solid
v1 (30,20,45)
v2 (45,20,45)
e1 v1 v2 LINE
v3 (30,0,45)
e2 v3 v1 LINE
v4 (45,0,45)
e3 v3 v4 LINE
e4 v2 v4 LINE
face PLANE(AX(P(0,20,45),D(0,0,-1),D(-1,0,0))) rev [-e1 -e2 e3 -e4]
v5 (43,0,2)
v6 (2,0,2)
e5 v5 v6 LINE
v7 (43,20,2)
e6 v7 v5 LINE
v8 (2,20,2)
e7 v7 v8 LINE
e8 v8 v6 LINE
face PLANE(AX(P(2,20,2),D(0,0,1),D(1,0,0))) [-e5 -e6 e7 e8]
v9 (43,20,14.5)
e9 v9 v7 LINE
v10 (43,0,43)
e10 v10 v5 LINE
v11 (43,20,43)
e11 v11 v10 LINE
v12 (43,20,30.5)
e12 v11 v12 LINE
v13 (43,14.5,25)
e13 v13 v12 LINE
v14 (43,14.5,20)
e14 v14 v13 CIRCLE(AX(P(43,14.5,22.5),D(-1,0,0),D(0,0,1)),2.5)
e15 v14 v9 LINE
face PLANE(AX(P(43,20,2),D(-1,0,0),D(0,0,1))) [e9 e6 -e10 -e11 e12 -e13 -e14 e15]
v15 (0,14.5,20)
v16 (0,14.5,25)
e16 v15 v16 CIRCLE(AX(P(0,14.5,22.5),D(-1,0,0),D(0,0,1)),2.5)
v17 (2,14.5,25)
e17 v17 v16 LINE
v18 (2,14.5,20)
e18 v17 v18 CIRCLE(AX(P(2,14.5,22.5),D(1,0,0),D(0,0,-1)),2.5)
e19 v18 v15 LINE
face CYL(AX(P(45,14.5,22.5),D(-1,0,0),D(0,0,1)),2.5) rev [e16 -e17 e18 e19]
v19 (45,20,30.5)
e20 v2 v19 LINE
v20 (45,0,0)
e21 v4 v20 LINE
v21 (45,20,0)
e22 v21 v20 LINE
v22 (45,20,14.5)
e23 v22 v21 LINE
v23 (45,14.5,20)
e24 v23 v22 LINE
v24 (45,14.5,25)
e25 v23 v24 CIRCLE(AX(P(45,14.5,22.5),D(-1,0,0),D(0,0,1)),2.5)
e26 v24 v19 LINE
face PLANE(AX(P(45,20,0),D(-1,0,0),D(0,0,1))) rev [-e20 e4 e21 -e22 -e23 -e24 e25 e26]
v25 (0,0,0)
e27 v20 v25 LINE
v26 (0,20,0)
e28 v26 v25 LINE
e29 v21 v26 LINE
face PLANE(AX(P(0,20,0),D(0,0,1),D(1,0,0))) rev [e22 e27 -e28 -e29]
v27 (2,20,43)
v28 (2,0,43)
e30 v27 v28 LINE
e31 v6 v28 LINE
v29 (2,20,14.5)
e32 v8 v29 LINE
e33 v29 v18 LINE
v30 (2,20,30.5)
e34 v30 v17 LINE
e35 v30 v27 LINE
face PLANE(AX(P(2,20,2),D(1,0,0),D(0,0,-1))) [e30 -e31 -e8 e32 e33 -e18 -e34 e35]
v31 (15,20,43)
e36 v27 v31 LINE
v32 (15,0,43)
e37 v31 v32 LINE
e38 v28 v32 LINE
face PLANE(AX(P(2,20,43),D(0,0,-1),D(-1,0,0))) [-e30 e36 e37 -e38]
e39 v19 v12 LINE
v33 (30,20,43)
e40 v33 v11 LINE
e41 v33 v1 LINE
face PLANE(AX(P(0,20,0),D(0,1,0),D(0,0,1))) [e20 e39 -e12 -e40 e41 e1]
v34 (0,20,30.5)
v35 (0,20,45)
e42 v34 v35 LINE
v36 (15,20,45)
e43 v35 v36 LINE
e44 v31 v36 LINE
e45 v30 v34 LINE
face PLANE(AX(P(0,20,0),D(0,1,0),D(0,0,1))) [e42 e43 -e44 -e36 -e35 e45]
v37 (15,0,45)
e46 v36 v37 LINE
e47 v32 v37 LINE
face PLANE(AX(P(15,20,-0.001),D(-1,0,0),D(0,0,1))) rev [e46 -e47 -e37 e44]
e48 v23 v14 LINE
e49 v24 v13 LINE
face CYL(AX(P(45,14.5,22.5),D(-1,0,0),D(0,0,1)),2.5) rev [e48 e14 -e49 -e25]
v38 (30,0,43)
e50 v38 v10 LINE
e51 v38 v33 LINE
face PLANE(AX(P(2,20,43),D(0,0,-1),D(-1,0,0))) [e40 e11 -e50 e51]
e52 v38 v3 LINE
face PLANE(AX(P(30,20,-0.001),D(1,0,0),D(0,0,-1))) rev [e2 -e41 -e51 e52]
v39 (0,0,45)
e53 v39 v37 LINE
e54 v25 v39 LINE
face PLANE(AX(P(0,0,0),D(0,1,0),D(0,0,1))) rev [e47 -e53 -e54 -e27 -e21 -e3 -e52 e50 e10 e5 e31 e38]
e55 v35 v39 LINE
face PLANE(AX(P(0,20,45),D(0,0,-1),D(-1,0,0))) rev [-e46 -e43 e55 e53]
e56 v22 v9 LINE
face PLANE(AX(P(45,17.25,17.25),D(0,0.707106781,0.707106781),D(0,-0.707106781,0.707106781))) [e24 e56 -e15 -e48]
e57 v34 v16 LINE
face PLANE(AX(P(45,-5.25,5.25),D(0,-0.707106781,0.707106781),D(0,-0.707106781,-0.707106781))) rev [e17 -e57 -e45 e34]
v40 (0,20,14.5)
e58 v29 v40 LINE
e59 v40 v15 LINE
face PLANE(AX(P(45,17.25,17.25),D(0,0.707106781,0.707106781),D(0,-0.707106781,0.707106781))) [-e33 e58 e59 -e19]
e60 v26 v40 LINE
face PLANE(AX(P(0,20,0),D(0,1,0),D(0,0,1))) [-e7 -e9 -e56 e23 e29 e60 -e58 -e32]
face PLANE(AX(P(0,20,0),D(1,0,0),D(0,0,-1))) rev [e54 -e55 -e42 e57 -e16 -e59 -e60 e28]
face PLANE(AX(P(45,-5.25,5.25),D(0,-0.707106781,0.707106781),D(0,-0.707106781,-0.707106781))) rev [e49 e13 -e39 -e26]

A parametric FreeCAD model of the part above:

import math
import FreeCAD as App
import Part
import Sketcher
from FreeCAD import Vector
Q = App.Units.Quantity

doc = App.newDocument("Part")
body = doc.addObject("PartDesign::Body", "Body")

# Sketch on XZ plane
sketch1 = doc.addObject("Sketcher::SketchObject", "Sketch")
body.addObject(sketch1)
sketch1.AttachmentSupport = (doc.XZ_Plane, [""])
sketch1.MapMode = "FlatFace"
sketch1.addGeometry(Part.LineSegment(Vector(0, 0, 0), Vector(0, 45, 0)), False)
sketch1.addGeometry(Part.LineSegment(Vector(0, 45, 0), Vector(45, 45, 0)), False)
sketch1.addGeometry(Part.LineSegment(Vector(45, 45, 0), Vector(45, 0, 0)), False)
sketch1.addGeometry(Part.LineSegment(Vector(45, 0, 0), Vector(0, 0, 0)), False)
sketch1.addGeometry(Part.LineSegment(Vector(43, 43, 0), Vector(2, 43, 0)), False)
sketch1.addGeometry(Part.LineSegment(Vector(2, 43, 0), Vector(2, 2, 0)), False)
sketch1.addGeometry(Part.LineSegment(Vector(2, 2, 0), Vector(43, 2, 0)), False)
sketch1.addGeometry(Part.LineSegment(Vector(43, 2, 0), Vector(43, 43, 0)), False)
sketch1.addConstraint(Sketcher.Constraint("Coincident", 0, 2, 1, 1))
sketch1.addConstraint(Sketcher.Constraint("Coincident", 1, 2, 2, 1))
sketch1.addConstraint(Sketcher.Constraint("Coincident", 2, 2, 3, 1))
sketch1.addConstraint(Sketcher.Constraint("Coincident", 3, 2, 0, 1))
sketch1.addConstraint(Sketcher.Constraint("Coincident", 4, 2, 5, 1))
sketch1.addConstraint(Sketcher.Constraint("Coincident", 5, 2, 6, 1))
sketch1.addConstraint(Sketcher.Constraint("Coincident", 6, 2, 7, 1))
sketch1.addConstraint(Sketcher.Constraint("Coincident", 7, 2, 4, 1))
sketch1.addConstraint(Sketcher.Constraint("Vertical", 0))
sketch1.addConstraint(Sketcher.Constraint("Horizontal", 1))
sketch1.addConstraint(Sketcher.Constraint("Vertical", 2))
sketch1.addConstraint(Sketcher.Constraint("Horizontal", 3))
sketch1.addConstraint(Sketcher.Constraint("Horizontal", 4))
sketch1.addConstraint(Sketcher.Constraint("Vertical", 5))
sketch1.addConstraint(Sketcher.Constraint("Horizontal", 6))
sketch1.addConstraint(Sketcher.Constraint("Vertical", 7))
sketch1.addConstraint(Sketcher.Constraint("Coincident", 3, 2, -1, 1))
sketch1.addConstraint(Sketcher.Constraint("Equal", 3, 0))
sketch1.addConstraint(Sketcher.Constraint("Equal", 6, 5))
sketch1.addConstraint(Sketcher.Constraint("DistanceX", 1, 1, 1, 2, Q("45 mm")))
sketch1.addConstraint(Sketcher.Constraint("DistanceX", 4, 2, 4, 1, Q("41 mm")))
sketch1.addConstraint(Sketcher.Constraint("DistanceX", -1, 1, 4, 2, Q("2 mm")))
sketch1.addConstraint(Sketcher.Constraint("DistanceY", -1, 1, 4, 2, Q("43 mm")))
pad1 = doc.addObject("PartDesign::Pad", "Pad")
body.addObject(pad1)
pad1.Profile = sketch1
pad1.Length = 20
pad1.Reversed = True

# Sketch on XY plane
sketch2 = doc.addObject("Sketcher::SketchObject", "Sketch001")
body.addObject(sketch2)
sketch2.AttachmentSupport = (doc.XY_Plane, [""])
sketch2.MapMode = "FlatFace"
sketch2.AttachmentOffset = App.Placement(Vector(0, 0, 45), App.Rotation())
sketch2.addGeometry(Part.LineSegment(Vector(15, 20, 0), Vector(15, 0, 0)), False)
sketch2.addGeometry(Part.LineSegment(Vector(15, 0, 0), Vector(30, 0, 0)), False)
sketch2.addGeometry(Part.LineSegment(Vector(30, 0, 0), Vector(30, 20, 0)), False)
sketch2.addGeometry(Part.LineSegment(Vector(30, 20, 0), Vector(15, 20, 0)), False)
sketch2.addConstraint(Sketcher.Constraint("Coincident", 0, 2, 1, 1))
sketch2.addConstraint(Sketcher.Constraint("Coincident", 1, 2, 2, 1))
sketch2.addConstraint(Sketcher.Constraint("Coincident", 2, 2, 3, 1))
sketch2.addConstraint(Sketcher.Constraint("Coincident", 3, 2, 0, 1))
sketch2.addConstraint(Sketcher.Constraint("Vertical", 0))
sketch2.addConstraint(Sketcher.Constraint("Horizontal", 1))
sketch2.addConstraint(Sketcher.Constraint("Vertical", 2))
sketch2.addConstraint(Sketcher.Constraint("Horizontal", 3))
sketch2.addConstraint(Sketcher.Constraint("PointOnObject", 0, 2, -1))
sketch2.addConstraint(Sketcher.Constraint("DistanceX", 1, 1, 1, 2, Q("15 mm")))
sketch2.addConstraint(Sketcher.Constraint("DistanceY", 0, 2, 0, 1, Q("20 mm")))
sketch2.addConstraint(Sketcher.Constraint("DistanceX", -1, 1, 0, 2, Q("15 mm")))
pocket1 = doc.addObject("PartDesign::Pocket", "Pocket")
body.addObject(pocket1)
pocket1.Profile = sketch2
pocket1.Type = "UpToFirst"

# Sketch on YZ plane
sketch3 = doc.addObject("Sketcher::SketchObject", "Sketch002")
body.addObject(sketch3)
sketch3.AttachmentSupport = (doc.YZ_Plane, [""])
sketch3.MapMode = "FlatFace"
sketch3.addGeometry(Part.ArcOfCircle(Part.Circle(Vector(14.5, 22.5, 0), Vector(0, 0, 1), 2.5), math.radians(180), math.radians(270)), False)
sketch3.addGeometry(Part.ArcOfCircle(Part.Circle(Vector(14.5, 22.5, 0), Vector(0, 0, 1), 2.5), math.radians(90), math.radians(180)), False)
sketch3.addGeometry(Part.LineSegment(Vector(14.5, 25, 0), Vector(20, 30.5, 0)), False)
sketch3.addGeometry(Part.LineSegment(Vector(20, 30.5, 0), Vector(20, 14.5, 0)), False)
sketch3.addGeometry(Part.LineSegment(Vector(20, 14.5, 0), Vector(14.5, 20, 0)), False)
sketch3.addConstraint(Sketcher.Constraint("Tangent", 0, 1, 1, 2))
sketch3.addConstraint(Sketcher.Constraint("Coincident", 1, 1, 2, 1))
sketch3.addConstraint(Sketcher.Constraint("Coincident", 2, 2, 3, 1))
sketch3.addConstraint(Sketcher.Constraint("Coincident", 3, 2, 4, 1))
sketch3.addConstraint(Sketcher.Constraint("Coincident", 4, 2, 0, 2))
sketch3.addConstraint(Sketcher.Constraint("Vertical", 3))
sketch3.addConstraint(Sketcher.Constraint("Equal", 0, 1))
sketch3.addConstraint(Sketcher.Constraint("Perpendicular", 2, 4))
sketch3.addConstraint(Sketcher.Constraint("Horizontal", 1, 3, 0, 1))
sketch3.addConstraint(Sketcher.Constraint("Vertical", 0, 3, 1, 1))
sketch3.addConstraint(Sketcher.Constraint("Vertical", 1, 1, 4, 2))
sketch3.addConstraint(Sketcher.Constraint("Equal", 2, 4))
sketch3.addConstraint(Sketcher.Constraint("Radius", 0, Q("2.5 mm")))
sketch3.addConstraint(Sketcher.Constraint("DistanceY", 3, 2, 3, 1, Q("16 mm")))
sketch3.addConstraint(Sketcher.Constraint("DistanceX", -1, 1, 0, 1, Q("12 mm")))
sketch3.addConstraint(Sketcher.Constraint("DistanceY", -1, 1, 1, 1, Q("25 mm")))
pocket2 = doc.addObject("PartDesign::Pocket", "Pocket001")
body.addObject(pocket2)
pocket2.Profile = sketch3
pocket2.Type = "ThroughAll"
pocket2.Midplane = True

doc.recompute()
